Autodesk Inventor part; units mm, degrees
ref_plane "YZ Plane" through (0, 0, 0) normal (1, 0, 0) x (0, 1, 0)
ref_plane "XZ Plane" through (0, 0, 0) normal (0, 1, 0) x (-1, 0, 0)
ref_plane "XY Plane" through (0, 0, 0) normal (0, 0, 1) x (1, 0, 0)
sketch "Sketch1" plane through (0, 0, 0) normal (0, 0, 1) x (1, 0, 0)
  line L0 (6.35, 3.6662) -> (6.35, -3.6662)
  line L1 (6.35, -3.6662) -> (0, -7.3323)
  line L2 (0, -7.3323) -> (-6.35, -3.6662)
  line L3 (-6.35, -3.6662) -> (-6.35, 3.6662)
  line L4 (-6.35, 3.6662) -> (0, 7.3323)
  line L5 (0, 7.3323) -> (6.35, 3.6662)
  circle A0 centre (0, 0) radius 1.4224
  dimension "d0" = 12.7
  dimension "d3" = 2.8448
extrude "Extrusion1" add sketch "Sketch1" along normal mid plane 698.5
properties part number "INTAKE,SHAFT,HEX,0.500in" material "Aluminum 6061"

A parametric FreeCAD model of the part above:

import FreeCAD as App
import Part
import Sketcher

V = App.Vector
Q = App.Units.Quantity


def add_polygon(sketch, points):
    """Adds a closed chain of lines whose ends are joined by coincident constraints."""
    first, n = sketch.GeometryCount, len(points)
    for a, b in zip(points, points[1:] + points[:1]):
        sketch.addGeometry(Part.LineSegment(App.Vector(*a, 0), App.Vector(*b, 0)), False)
    for i in range(n):
        sketch.addConstraint(Sketcher.Constraint("Coincident", first + i, 2, first + (i + 1) % n, 1))

doc = App.newDocument("Part")
body = doc.addObject("PartDesign::Body", "Body")

sketch1 = body.newObject("Sketcher::SketchObject", "Sketch")
sketch1.AttachmentSupport = (doc.getObject("XY_Plane"), [""])
sketch1.MapMode = "FlatFace"
add_polygon(sketch1, [(6.3, -3.7), (6.3, 3.7), (0, 7.3), (-6.3, 3.7), (-6.3, -3.7), (0, -7.3)])
sketch1.addGeometry(Part.Circle(V(0, 0, 0), V(0, 0, 1), 1.4), False)
sketch1.addConstraint([
    Sketcher.Constraint("Vertical", 0),
    Sketcher.Constraint("Vertical", 3),
    Sketcher.Constraint("Coincident", 6, 3, -1, 1),
    Sketcher.Constraint("Symmetric", 0, 2, 3, 2, -1, 1),
    Sketcher.Constraint("Symmetric", 1, 2, 4, 2, -1, 1),
    Sketcher.Constraint("PointOnObject", 1, 2, -2),
    Sketcher.Constraint("Parallel", 2, 5),
    Sketcher.Constraint("Horizontal", 0, 2, 2, 2),
    Sketcher.Constraint("Diameter", 6, Q("0.112 in")),
    Sketcher.Constraint("DistanceX", 2, 2, 0, 2, Q("0.5 in")),
    Sketcher.Constraint("Angle", 1, Q("150.0005 deg")),
    Sketcher.Constraint("DistanceY", 3, 2, 1, 2, Q("0.433 in")),
])
pad1 = body.newObject("PartDesign::Pad", "Pad")
pad1.Profile = sketch1
pad1.Length = Q("27.5 in")
pad1.Midplane = True

doc.recompute()
